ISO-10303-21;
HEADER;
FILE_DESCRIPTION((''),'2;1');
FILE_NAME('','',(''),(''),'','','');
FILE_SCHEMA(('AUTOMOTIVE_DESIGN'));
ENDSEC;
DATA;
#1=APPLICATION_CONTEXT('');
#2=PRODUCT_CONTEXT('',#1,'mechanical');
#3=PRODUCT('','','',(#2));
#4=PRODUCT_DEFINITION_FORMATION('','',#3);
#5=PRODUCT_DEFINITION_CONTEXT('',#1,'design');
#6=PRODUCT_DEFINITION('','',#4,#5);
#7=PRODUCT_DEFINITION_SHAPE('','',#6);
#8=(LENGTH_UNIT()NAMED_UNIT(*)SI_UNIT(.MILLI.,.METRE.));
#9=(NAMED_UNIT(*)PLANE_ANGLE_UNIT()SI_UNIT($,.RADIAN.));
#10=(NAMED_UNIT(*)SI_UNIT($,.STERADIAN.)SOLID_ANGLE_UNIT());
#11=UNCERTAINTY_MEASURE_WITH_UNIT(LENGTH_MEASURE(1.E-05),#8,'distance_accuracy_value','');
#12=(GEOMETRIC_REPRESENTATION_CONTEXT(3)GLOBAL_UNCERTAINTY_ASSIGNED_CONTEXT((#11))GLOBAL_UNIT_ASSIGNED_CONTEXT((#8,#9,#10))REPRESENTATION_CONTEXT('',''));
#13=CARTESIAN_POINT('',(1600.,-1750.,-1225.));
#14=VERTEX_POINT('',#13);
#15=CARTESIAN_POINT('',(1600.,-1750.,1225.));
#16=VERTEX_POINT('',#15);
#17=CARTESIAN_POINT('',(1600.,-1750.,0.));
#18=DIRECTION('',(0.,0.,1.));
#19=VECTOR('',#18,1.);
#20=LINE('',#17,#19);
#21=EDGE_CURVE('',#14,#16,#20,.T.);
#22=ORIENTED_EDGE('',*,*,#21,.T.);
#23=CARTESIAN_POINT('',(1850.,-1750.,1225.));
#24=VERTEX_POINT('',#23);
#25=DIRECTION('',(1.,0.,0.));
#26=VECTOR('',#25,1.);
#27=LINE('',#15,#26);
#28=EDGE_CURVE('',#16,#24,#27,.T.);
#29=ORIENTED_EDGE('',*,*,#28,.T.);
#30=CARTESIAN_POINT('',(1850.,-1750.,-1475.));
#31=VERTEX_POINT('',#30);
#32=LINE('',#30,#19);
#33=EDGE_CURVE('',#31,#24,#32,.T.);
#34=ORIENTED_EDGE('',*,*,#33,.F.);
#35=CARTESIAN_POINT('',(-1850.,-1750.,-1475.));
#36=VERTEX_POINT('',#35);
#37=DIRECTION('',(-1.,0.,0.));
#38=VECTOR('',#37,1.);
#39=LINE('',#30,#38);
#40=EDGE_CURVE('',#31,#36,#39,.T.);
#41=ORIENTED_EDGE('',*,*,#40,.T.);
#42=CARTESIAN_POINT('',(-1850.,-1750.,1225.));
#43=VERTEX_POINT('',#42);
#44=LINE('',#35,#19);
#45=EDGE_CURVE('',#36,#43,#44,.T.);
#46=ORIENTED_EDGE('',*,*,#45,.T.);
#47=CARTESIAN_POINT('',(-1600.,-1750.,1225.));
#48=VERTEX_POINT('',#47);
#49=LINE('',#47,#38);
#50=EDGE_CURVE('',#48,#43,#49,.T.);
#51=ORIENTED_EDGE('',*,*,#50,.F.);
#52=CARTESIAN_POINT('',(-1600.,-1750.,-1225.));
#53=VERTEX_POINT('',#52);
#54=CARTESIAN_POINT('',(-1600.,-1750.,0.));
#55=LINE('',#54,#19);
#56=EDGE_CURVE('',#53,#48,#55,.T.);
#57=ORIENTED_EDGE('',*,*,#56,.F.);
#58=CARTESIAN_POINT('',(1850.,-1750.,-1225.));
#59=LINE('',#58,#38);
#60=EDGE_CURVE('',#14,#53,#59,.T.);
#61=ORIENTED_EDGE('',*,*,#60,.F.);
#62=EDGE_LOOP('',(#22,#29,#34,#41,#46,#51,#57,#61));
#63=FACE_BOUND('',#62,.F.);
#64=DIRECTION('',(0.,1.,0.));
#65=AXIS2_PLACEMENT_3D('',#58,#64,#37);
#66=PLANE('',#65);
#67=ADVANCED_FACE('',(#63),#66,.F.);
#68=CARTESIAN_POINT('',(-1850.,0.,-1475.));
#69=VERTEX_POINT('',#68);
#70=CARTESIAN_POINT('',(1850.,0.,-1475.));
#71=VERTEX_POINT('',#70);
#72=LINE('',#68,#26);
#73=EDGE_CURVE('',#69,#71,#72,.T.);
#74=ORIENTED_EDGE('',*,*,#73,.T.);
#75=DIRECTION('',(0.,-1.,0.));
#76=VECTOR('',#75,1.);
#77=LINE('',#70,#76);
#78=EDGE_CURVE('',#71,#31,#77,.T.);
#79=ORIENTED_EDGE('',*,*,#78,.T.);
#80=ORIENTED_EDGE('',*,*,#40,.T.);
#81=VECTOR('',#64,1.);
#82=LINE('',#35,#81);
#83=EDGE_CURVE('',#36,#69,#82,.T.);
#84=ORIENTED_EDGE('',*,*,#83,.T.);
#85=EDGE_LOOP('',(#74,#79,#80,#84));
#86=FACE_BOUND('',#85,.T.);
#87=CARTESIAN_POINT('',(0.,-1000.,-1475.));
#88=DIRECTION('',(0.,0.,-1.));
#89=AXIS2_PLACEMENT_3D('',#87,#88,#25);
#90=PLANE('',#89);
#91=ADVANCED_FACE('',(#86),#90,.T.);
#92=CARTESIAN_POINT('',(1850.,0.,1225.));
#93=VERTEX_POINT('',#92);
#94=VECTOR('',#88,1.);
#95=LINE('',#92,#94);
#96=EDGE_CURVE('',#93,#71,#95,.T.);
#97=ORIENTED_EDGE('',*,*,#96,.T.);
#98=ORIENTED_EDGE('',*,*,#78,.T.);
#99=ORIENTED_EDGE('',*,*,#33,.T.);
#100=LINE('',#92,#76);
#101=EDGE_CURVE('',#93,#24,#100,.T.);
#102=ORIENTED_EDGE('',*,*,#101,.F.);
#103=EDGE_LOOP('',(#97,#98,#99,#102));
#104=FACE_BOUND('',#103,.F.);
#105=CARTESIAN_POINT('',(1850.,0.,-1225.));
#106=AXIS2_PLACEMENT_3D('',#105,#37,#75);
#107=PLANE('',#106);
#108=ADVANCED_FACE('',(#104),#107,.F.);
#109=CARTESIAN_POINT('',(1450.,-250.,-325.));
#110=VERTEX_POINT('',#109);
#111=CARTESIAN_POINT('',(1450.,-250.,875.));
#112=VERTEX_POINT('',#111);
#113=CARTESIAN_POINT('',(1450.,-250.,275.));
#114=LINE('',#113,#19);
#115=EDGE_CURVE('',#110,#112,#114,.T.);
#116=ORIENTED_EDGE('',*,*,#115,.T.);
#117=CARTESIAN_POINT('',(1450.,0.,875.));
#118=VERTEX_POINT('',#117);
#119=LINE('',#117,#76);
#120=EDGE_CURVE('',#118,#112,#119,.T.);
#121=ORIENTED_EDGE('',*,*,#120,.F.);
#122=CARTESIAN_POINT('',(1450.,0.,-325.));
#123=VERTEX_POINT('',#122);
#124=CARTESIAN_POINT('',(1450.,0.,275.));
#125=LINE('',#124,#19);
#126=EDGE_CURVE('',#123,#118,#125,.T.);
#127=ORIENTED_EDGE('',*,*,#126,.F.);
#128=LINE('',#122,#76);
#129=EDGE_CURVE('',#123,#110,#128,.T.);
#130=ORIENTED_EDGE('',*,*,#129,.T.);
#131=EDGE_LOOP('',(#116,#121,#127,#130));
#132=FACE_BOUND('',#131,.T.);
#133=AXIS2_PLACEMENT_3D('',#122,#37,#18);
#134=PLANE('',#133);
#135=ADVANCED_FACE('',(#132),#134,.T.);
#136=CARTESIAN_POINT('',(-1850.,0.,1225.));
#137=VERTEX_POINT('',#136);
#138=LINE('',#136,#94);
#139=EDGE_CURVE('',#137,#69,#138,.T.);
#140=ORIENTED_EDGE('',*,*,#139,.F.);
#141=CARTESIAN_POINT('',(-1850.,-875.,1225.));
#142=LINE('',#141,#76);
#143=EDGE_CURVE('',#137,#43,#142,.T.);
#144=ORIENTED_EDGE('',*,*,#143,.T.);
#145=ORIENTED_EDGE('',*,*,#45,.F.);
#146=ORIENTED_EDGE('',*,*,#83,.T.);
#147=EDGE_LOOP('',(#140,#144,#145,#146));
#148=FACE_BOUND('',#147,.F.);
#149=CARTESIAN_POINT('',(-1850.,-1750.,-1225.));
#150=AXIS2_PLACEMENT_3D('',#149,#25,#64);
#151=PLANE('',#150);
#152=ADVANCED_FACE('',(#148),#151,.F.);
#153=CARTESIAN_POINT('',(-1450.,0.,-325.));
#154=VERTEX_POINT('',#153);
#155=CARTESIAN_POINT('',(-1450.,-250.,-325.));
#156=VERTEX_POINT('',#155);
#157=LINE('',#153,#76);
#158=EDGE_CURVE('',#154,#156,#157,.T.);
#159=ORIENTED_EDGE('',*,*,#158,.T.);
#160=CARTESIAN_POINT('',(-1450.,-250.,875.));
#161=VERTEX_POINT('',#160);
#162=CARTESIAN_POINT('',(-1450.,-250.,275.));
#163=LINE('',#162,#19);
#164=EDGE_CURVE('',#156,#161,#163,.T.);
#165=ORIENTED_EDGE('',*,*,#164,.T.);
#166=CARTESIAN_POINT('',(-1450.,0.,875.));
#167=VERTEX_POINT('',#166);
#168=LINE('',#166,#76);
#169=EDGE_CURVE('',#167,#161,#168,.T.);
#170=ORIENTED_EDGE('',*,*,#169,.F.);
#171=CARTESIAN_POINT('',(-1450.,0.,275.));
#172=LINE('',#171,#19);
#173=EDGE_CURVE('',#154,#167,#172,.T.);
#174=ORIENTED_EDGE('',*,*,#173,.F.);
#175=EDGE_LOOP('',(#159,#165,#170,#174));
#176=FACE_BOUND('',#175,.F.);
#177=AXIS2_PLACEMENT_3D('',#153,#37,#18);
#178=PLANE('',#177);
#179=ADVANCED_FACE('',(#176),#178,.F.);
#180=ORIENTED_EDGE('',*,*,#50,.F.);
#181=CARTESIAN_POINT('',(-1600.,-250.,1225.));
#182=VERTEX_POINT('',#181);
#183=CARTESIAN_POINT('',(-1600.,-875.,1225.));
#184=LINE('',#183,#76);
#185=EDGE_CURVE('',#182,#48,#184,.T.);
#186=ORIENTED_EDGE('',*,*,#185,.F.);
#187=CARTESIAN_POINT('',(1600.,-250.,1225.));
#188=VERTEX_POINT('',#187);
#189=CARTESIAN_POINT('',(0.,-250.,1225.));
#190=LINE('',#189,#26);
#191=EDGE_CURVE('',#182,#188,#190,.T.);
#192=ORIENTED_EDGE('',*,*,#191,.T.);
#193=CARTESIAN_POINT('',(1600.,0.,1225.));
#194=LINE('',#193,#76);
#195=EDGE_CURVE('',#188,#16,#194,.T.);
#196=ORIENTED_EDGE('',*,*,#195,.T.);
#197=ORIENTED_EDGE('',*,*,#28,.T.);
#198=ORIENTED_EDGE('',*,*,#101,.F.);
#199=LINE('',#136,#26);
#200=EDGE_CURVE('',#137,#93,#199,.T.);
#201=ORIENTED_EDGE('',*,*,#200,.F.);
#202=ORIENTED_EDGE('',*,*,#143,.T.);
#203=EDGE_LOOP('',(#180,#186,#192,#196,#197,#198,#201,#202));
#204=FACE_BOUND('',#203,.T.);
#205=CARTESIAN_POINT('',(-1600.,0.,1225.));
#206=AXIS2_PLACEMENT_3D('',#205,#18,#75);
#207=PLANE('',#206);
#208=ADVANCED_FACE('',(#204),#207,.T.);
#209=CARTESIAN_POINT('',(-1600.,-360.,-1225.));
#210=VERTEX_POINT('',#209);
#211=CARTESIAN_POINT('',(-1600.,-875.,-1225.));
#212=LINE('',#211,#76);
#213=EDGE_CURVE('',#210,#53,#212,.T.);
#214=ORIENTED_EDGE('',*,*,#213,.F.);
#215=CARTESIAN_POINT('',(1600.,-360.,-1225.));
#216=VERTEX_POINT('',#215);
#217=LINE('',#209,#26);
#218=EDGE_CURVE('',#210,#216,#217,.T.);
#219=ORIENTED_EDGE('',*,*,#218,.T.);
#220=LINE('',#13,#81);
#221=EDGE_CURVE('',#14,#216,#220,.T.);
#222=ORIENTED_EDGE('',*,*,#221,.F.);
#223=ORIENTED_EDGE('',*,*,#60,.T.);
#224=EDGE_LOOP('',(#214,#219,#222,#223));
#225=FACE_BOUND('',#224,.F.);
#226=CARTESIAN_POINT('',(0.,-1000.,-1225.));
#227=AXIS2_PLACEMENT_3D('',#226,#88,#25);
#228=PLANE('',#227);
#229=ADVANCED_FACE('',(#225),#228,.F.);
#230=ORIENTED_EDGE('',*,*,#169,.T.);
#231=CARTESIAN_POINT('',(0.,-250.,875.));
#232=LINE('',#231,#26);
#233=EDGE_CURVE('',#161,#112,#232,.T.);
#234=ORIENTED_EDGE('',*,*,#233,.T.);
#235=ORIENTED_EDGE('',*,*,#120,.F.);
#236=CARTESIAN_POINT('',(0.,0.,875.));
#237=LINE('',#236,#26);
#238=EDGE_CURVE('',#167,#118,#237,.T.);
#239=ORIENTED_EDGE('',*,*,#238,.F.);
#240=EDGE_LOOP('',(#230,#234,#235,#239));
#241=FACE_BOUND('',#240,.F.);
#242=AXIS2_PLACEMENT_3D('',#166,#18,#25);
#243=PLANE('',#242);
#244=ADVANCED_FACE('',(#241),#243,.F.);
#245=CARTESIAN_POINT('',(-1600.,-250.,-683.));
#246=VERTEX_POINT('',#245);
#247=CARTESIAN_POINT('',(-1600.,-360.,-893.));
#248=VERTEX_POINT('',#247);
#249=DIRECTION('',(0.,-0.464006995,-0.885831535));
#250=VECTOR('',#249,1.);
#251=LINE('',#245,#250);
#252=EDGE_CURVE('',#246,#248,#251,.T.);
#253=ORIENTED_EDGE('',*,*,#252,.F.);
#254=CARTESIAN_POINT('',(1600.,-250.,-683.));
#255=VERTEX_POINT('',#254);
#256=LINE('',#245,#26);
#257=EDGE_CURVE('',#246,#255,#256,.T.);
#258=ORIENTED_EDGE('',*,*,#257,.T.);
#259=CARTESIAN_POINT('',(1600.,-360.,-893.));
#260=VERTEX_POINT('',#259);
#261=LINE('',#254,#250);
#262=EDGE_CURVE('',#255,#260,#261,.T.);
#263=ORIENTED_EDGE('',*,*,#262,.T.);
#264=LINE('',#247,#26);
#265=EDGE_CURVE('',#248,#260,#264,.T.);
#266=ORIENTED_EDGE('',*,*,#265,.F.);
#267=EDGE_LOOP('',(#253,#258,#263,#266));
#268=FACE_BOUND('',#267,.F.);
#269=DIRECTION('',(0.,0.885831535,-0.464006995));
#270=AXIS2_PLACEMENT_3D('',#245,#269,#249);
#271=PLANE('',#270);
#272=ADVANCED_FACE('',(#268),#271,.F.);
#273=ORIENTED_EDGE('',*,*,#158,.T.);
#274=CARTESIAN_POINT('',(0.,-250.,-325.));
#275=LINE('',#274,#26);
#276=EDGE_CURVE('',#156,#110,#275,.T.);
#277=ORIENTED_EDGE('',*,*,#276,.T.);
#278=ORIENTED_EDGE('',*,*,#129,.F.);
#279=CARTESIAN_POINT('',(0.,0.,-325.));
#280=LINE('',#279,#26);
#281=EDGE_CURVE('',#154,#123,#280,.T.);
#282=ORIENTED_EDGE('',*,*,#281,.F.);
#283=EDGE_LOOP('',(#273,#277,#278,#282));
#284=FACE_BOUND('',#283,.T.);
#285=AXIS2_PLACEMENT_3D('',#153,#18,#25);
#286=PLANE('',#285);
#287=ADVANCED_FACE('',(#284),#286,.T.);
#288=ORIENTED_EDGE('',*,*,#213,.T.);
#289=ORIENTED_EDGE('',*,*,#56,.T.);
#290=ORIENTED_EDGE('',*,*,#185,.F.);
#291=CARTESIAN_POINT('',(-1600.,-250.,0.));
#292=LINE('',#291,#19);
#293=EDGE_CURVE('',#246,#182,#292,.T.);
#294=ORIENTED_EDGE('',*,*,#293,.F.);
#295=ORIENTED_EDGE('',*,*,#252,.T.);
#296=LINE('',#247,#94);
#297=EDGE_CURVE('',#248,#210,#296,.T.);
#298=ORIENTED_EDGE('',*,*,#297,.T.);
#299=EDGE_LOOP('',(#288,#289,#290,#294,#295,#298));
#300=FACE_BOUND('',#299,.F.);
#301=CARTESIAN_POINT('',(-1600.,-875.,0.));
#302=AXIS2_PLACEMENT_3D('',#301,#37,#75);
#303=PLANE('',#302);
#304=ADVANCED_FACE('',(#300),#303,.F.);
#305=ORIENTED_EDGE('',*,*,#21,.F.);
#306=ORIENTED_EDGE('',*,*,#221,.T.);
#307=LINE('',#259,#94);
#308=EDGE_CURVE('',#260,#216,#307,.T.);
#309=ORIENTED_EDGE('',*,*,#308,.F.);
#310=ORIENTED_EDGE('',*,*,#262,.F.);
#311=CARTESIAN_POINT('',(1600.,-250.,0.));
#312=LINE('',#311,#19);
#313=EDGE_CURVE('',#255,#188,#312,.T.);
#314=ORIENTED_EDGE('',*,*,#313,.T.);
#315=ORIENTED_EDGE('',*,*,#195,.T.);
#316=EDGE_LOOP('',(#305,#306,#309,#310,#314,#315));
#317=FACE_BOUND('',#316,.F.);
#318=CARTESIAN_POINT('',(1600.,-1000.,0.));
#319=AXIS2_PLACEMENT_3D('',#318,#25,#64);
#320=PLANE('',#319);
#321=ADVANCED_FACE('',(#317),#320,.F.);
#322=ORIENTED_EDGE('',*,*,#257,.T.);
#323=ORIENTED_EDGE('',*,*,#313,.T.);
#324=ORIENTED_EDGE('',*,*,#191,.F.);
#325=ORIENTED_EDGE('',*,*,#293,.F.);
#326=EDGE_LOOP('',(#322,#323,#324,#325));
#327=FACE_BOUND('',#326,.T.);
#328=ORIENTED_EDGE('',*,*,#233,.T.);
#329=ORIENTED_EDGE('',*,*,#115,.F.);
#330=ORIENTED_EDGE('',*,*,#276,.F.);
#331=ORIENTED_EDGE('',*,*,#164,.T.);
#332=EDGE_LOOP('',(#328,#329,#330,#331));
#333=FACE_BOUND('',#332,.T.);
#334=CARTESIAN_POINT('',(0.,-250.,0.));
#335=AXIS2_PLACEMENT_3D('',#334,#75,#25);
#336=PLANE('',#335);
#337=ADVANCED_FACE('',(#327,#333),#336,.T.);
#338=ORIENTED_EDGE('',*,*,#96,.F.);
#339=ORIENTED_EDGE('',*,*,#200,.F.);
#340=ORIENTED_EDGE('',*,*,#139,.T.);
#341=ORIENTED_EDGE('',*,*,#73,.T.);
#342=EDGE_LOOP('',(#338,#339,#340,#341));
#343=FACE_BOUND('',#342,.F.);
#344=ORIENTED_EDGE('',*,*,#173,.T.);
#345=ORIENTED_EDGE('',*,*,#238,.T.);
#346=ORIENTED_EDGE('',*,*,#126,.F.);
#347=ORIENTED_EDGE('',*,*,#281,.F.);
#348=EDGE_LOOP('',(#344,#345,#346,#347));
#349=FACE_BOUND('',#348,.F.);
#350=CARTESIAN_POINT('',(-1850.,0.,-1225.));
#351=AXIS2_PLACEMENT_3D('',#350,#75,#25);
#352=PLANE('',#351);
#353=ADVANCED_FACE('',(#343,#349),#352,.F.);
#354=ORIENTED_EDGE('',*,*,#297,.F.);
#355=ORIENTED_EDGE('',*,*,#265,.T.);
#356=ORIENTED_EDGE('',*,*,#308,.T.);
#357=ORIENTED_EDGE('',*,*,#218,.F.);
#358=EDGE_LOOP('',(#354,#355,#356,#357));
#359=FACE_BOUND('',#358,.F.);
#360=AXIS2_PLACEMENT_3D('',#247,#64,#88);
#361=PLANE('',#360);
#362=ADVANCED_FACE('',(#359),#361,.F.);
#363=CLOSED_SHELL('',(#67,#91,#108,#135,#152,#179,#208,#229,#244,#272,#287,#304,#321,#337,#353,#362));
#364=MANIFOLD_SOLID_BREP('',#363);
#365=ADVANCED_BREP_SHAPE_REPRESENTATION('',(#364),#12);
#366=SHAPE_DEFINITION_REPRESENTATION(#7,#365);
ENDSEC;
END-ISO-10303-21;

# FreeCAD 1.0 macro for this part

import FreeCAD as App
import Part
import Sketcher

V = App.Vector


def add_polygon(sketch, points):
    """Adds a closed chain of lines whose ends are joined by coincident constraints."""
    first, n = sketch.GeometryCount, len(points)
    for a, b in zip(points, points[1:] + points[:1]):
        sketch.addGeometry(Part.LineSegment(App.Vector(*a, 0), App.Vector(*b, 0)), False)
    for i in range(n):
        sketch.addConstraint(Sketcher.Constraint("Coincident", first + i, 2, first + (i + 1) % n, 1))

doc = App.newDocument("Part")
body = doc.addObject("PartDesign::Body", "Body")

# Sketch on XZ plane
sketch1 = doc.addObject("Sketcher::SketchObject", "Sketch")
body.addObject(sketch1)
sketch1.AttachmentSupport = (doc.XZ_Plane, [""])
sketch1.MapMode = "FlatFace"
add_polygon(sketch1, [(-1600, 1225), (-1600, -1225), (1600, -1225), (1600, 1225)])  # lines 0-3
add_polygon(sketch1, [(1450, -325), (-1450, -325), (-1450, 875), (1450, 875)])  # lines 4-7
sketch1.addConstraint(Sketcher.Constraint("Vertical", 0))
sketch1.addConstraint(Sketcher.Constraint("Horizontal", 1))
sketch1.addConstraint(Sketcher.Constraint("Vertical", 2))
sketch1.addConstraint(Sketcher.Constraint("Horizontal", 3))
sketch1.addConstraint(Sketcher.Constraint("Horizontal", 4))
sketch1.addConstraint(Sketcher.Constraint("Vertical", 5))
sketch1.addConstraint(Sketcher.Constraint("Horizontal", 6))
sketch1.addConstraint(Sketcher.Constraint("Vertical", 7))
sketch1.addConstraint(Sketcher.Constraint("Symmetric", 0, 2, 2, 2, -1, 1))
sketch1.addConstraint(Sketcher.Constraint("DistanceX", 1, 1, 1, 2, 3200.0))
sketch1.addConstraint(Sketcher.Constraint("DistanceX", 4, 2, 4, 1, 2900.0))
sketch1.addConstraint(Sketcher.Constraint("DistanceY", 0, 2, 0, 1, 2450.0))
sketch1.addConstraint(Sketcher.Constraint("DistanceY", 5, 1, 5, 2, 1200.0))
sketch1.addConstraint(Sketcher.Constraint("DistanceX", 4, 2, -1, 1, 1450.0))
sketch1.addConstraint(Sketcher.Constraint("DistanceY", 4, 2, -1, 1, 325.0))
pad1 = doc.addObject("PartDesign::Pad", "Pad")
body.addObject(pad1)
pad1.Profile = sketch1
pad1.Length = 250

# Sketch on YZ plane
sketch2 = doc.addObject("Sketcher::SketchObject", "Sketch001")
body.addObject(sketch2)
sketch2.AttachmentSupport = (doc.YZ_Plane, [""])
sketch2.MapMode = "FlatFace"
sketch2.AttachmentOffset = App.Placement(V(0, 0, 1600), App.Rotation())
add_polygon(sketch2, [(-1750, 1225), (-1750, -1225), (0, -1225), (0, 1225)])  # lines 0-3
sketch2.addConstraint(Sketcher.Constraint("Vertical", 0))
sketch2.addConstraint(Sketcher.Constraint("Horizontal", 1))
sketch2.addConstraint(Sketcher.Constraint("Vertical", 2))
sketch2.addConstraint(Sketcher.Constraint("Horizontal", 3))
sketch2.addConstraint(Sketcher.Constraint("Symmetric", 1, 2, 2, 2, -1, 1))
sketch2.addConstraint(Sketcher.Constraint("DistanceX", 1, 1, 1, 2, 1750.0))
sketch2.addConstraint(Sketcher.Constraint("DistanceY", 0, 2, 0, 1, 2450.0))
pad2 = doc.addObject("PartDesign::Pad", "Pad001")
body.addObject(pad2)
pad2.Profile = sketch2
pad2.Length = 250

# Sketch on YZ plane
sketch3 = doc.addObject("Sketcher::SketchObject", "Sketch002")
body.addObject(sketch3)
sketch3.AttachmentSupport = (doc.YZ_Plane, [""])
sketch3.MapMode = "FlatFace"
sketch3.AttachmentOffset = App.Placement(V(0, 0, -1600), App.Rotation())
add_polygon(sketch3, [(0, 1225), (0, -1225), (-1750, -1225), (-1750, 1225)])  # lines 0-3
sketch3.addConstraint(Sketcher.Constraint("Vertical", 0))
sketch3.addConstraint(Sketcher.Constraint("Horizontal", 1))
sketch3.addConstraint(Sketcher.Constraint("Vertical", 2))
sketch3.addConstraint(Sketcher.Constraint("Horizontal", 3))
sketch3.addConstraint(Sketcher.Constraint("Symmetric", 0, 2, 3, 2, -1, 1))
sketch3.addConstraint(Sketcher.Constraint("DistanceX", 1, 2, 1, 1, 1750.0))
sketch3.addConstraint(Sketcher.Constraint("DistanceY", 0, 2, 0, 1, 2450.0))
pad3 = doc.addObject("PartDesign::Pad", "Pad002")
body.addObject(pad3)
pad3.Profile = sketch3
pad3.Length = 250
pad3.Reversed = True

# Sketch on XY plane
sketch4 = doc.addObject("Sketcher::SketchObject", "Sketch003")
body.addObject(sketch4)
sketch4.AttachmentSupport = (doc.XY_Plane, [""])
sketch4.MapMode = "FlatFace"
sketch4.AttachmentOffset = App.Placement(V(0, 0, -1225), App.Rotation())
add_polygon(sketch4, [(-1850, -1750), (-1850, 0), (1850, 0), (1850, -1750)])  # lines 0-3
sketch4.addConstraint(Sketcher.Constraint("Vertical", 0))
sketch4.addConstraint(Sketcher.Constraint("Horizontal", 1))
sketch4.addConstraint(Sketcher.Constraint("Vertical", 2))
sketch4.addConstraint(Sketcher.Constraint("Horizontal", 3))
sketch4.addConstraint(Sketcher.Constraint("Symmetric", 0, 2, 1, 2, -1, 1))
sketch4.addConstraint(Sketcher.Constraint("DistanceX", 1, 1, 1, 2, 3700.0))
sketch4.addConstraint(Sketcher.Constraint("DistanceY", 0, 1, 0, 2, 1750.0))
pad4 = doc.addObject("PartDesign::Pad", "Pad003")
body.addObject(pad4)
pad4.Profile = sketch4
pad4.Length = 250
pad4.Reversed = True

# Sketch on YZ plane
sketch5 = doc.addObject("Sketcher::SketchObject", "Sketch004")
body.addObject(sketch5)
sketch5.AttachmentSupport = (doc.YZ_Plane, [""])
sketch5.MapMode = "FlatFace"
sketch5.AttachmentOffset = App.Placement(V(0, 0, -1600), App.Rotation())
add_polygon(sketch5, [(-360, -1225), (-250, -1225), (-250, -683), (-360, -893)])  # lines 0-3
sketch5.addConstraint(Sketcher.Constraint("Horizontal", 0))
sketch5.addConstraint(Sketcher.Constraint("Vertical", 1))
sketch5.addConstraint(Sketcher.Constraint("Vertical", 3))
sketch5.addConstraint(Sketcher.Constraint("DistanceX", 0, 1, 0, 2, 110.0))
sketch5.addConstraint(Sketcher.Constraint("DistanceY", 1, 1, 1, 2, 542.0))
sketch5.addConstraint(Sketcher.Constraint("DistanceY", 3, 2, 3, 1, 332.0))
sketch5.addConstraint(Sketcher.Constraint("DistanceX", 0, 2, -1, 1, 250.0))
sketch5.addConstraint(Sketcher.Constraint("DistanceY", 0, 2, -1, 1, 1225.0))
pad5 = doc.addObject("PartDesign::Pad", "Pad004")
body.addObject(pad5)
pad5.Profile = sketch5
pad5.Type = "UpToLast"

doc.recompute()
